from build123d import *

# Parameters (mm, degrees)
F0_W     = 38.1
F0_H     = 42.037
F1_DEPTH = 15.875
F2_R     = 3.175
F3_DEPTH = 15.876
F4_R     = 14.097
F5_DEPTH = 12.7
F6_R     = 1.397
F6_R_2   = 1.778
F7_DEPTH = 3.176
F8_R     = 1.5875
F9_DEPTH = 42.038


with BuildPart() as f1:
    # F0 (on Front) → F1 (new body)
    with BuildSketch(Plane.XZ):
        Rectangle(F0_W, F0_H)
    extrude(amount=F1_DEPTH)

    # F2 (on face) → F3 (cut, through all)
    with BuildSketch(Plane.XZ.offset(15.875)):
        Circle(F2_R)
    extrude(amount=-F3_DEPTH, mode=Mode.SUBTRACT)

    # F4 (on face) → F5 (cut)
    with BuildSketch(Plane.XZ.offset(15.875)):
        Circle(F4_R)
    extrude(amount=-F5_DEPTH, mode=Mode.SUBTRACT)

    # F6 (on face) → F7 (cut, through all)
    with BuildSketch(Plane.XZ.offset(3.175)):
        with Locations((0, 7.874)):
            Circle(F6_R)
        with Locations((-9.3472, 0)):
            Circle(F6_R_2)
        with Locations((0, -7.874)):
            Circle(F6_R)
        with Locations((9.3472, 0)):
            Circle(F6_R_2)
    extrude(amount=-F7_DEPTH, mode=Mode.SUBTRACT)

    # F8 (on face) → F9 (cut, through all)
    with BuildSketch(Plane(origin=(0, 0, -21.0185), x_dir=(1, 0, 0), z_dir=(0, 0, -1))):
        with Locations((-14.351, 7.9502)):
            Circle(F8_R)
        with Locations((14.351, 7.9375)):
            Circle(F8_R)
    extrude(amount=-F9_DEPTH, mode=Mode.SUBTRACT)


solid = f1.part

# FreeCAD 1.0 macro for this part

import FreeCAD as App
import Part
import Sketcher
Q = App.Units.Quantity

doc = App.newDocument("Part")
body = doc.addObject("PartDesign::Body", "Body")

# Sketch on XZ plane
sketch1 = body.newObject("Sketcher::SketchObject", "Sketch")
sketch1.AttachmentSupport = (doc.getObject("XZ_Plane"), [""])
sketch1.MapMode = "FlatFace"
sketch1.addGeometry(Part.LineSegment(App.Vector(-19, 21, 0), App.Vector(-19, -21, 0)), False)
sketch1.addGeometry(Part.LineSegment(App.Vector(-19, -21, 0), App.Vector(19, -21, 0)), False)
sketch1.addGeometry(Part.LineSegment(App.Vector(19, -21, 0), App.Vector(19, 21, 0)), False)
sketch1.addGeometry(Part.LineSegment(App.Vector(19, 21, 0), App.Vector(-19, 21, 0)), False)
sketch1.addConstraint(Sketcher.Constraint("Coincident", 0, 2, 1, 1))
sketch1.addConstraint(Sketcher.Constraint("Coincident", 1, 2, 2, 1))
sketch1.addConstraint(Sketcher.Constraint("Coincident", 2, 2, 3, 1))
sketch1.addConstraint(Sketcher.Constraint("Coincident", 3, 2, 0, 1))
sketch1.addConstraint(Sketcher.Constraint("Vertical", 0))
sketch1.addConstraint(Sketcher.Constraint("Horizontal", 1))
sketch1.addConstraint(Sketcher.Constraint("Vertical", 2))
sketch1.addConstraint(Sketcher.Constraint("Horizontal", 3))
sketch1.addConstraint(Sketcher.Constraint("Symmetric", 0, 2, 2, 2, -1, 1))
sketch1.addConstraint(Sketcher.Constraint("DistanceX", 1, 1, 1, 2, Q("1.5 in")))
sketch1.addConstraint(Sketcher.Constraint("DistanceY", 0, 2, 0, 1, Q("1.655 in")))
pad1 = body.newObject("PartDesign::Pad", "Pad")
pad1.Profile = sketch1
pad1.Length = Q("0.625 in")

# Sketch on XZ plane
sketch2 = body.newObject("Sketcher::SketchObject", "Sketch001")
sketch2.AttachmentSupport = (doc.getObject("XZ_Plane"), [""])
sketch2.MapMode = "FlatFace"
sketch2.AttachmentOffset = App.Placement(App.Vector(0, 0, 0.625 * 25.4), App.Rotation())
sketch2.addGeometry(Part.Circle(App.Vector(0, 0, 0), App.Vector(0, 0, 1), 3.2), False)
sketch2.addConstraint(Sketcher.Constraint("Coincident", 0, 3, -1, 1))
sketch2.addConstraint(Sketcher.Constraint("Diameter", 0, Q("0.25 in")))
pocket1 = body.newObject("PartDesign::Pocket", "Pocket")
pocket1.Profile = sketch2
pocket1.Type = "ThroughAll"

# Sketch on XZ plane
sketch3 = body.newObject("Sketcher::SketchObject", "Sketch002")
sketch3.AttachmentSupport = (doc.getObject("XZ_Plane"), [""])
sketch3.MapMode = "FlatFace"
sketch3.AttachmentOffset = App.Placement(App.Vector(0, 0, 0.625 * 25.4), App.Rotation())
sketch3.addGeometry(Part.Circle(App.Vector(0, 0, 0), App.Vector(0, 0, 1), 14), False)
sketch3.addConstraint(Sketcher.Constraint("Coincident", 0, 3, -1, 1))
sketch3.addConstraint(Sketcher.Constraint("Diameter", 0, Q("1.11 in")))
pocket2 = body.newObject("PartDesign::Pocket", "Pocket001")
pocket2.Profile = sketch3
pocket2.Length = Q("0.5 in")

# Sketch on XZ plane
sketch4 = body.newObject("Sketcher::SketchObject", "Sketch003")
sketch4.AttachmentSupport = (doc.getObject("XZ_Plane"), [""])
sketch4.MapMode = "FlatFace"
sketch4.AttachmentOffset = App.Placement(App.Vector(0, 0, 0.125 * 25.4), App.Rotation())
sketch4.addGeometry(Part.Circle(App.Vector(0, 7.9, 0), App.Vector(0, 0, 1), 1.4), False)
sketch4.addGeometry(Part.Circle(App.Vector(-9.3, 0, 0), App.Vector(0, 0, 1), 1.8), False)
sketch4.addGeometry(Part.Circle(App.Vector(0, -7.9, 0), App.Vector(0, 0, 1), 1.4), False)
sketch4.addGeometry(Part.Circle(App.Vector(9.3, 0, 0), App.Vector(0, 0, 1), 1.8), False)
sketch4.addConstraint(Sketcher.Constraint("Equal", 0, 2))
sketch4.addConstraint(Sketcher.Constraint("Equal", 1, 3))
sketch4.addConstraint(Sketcher.Constraint("Symmetric", 0, 3, 2, 3, -1, 1))
sketch4.addConstraint(Sketcher.Constraint("Symmetric", 1, 3, 3, 3, -1, 1))
sketch4.addConstraint(Sketcher.Constraint("PointOnObject", 0, 3, -2))
sketch4.addConstraint(Sketcher.Constraint("PointOnObject", 1, 3, -1))
sketch4.addConstraint(Sketcher.Constraint("Diameter", 0, Q("0.11 in")))
sketch4.addConstraint(Sketcher.Constraint("Diameter", 1, Q("0.14 in")))
sketch4.addConstraint(Sketcher.Constraint("DistanceY", -1, 1, 0, 3, Q("0.31 in")))
sketch4.addConstraint(Sketcher.Constraint("DistanceX", 1, 3, -1, 1, Q("0.368 in")))
pocket3 = body.newObject("PartDesign::Pocket", "Pocket002")
pocket3.Profile = sketch4
pocket3.Type = "ThroughAll"

# Sketch on XY plane
sketch5 = body.newObject("Sketcher::SketchObject", "Sketch004")
sketch5.AttachmentSupport = (doc.getObject("XY_Plane"), [""])
sketch5.MapMode = "FlatFace"
sketch5.AttachmentOffset = App.Placement(App.Vector(0, 0, -0.8275 * 25.4), App.Rotation())
sketch5.addGeometry(Part.Circle(App.Vector(-14.4, -8, 0), App.Vector(0, 0, 1), 1.6), False)
sketch5.addGeometry(Part.Circle(App.Vector(14.4, -7.9, 0), App.Vector(0, 0, 1), 1.6), False)
sketch5.addConstraint(Sketcher.Constraint("Equal", 0, 1))
sketch5.addConstraint(Sketcher.Constraint("Diameter", 0, Q("0.125 in")))
sketch5.addConstraint(Sketcher.Constraint("DistanceX", 0, 3, 1, 3, Q("1.13 in")))
sketch5.addConstraint(Sketcher.Constraint("DistanceX", 0, 3, -1, 1, Q("0.565 in")))
sketch5.addConstraint(Sketcher.Constraint("DistanceY", 0, 3, -1, 1, Q("0.313 in")))
sketch5.addConstraint(Sketcher.Constraint("DistanceY", 1, 3, -1, 1, Q("0.3125 in")))
pocket4 = body.newObject("PartDesign::Pocket", "Pocket003")
pocket4.Profile = sketch5
pocket4.Type = "ThroughAll"
pocket4.Reversed = True

doc.recompute()
